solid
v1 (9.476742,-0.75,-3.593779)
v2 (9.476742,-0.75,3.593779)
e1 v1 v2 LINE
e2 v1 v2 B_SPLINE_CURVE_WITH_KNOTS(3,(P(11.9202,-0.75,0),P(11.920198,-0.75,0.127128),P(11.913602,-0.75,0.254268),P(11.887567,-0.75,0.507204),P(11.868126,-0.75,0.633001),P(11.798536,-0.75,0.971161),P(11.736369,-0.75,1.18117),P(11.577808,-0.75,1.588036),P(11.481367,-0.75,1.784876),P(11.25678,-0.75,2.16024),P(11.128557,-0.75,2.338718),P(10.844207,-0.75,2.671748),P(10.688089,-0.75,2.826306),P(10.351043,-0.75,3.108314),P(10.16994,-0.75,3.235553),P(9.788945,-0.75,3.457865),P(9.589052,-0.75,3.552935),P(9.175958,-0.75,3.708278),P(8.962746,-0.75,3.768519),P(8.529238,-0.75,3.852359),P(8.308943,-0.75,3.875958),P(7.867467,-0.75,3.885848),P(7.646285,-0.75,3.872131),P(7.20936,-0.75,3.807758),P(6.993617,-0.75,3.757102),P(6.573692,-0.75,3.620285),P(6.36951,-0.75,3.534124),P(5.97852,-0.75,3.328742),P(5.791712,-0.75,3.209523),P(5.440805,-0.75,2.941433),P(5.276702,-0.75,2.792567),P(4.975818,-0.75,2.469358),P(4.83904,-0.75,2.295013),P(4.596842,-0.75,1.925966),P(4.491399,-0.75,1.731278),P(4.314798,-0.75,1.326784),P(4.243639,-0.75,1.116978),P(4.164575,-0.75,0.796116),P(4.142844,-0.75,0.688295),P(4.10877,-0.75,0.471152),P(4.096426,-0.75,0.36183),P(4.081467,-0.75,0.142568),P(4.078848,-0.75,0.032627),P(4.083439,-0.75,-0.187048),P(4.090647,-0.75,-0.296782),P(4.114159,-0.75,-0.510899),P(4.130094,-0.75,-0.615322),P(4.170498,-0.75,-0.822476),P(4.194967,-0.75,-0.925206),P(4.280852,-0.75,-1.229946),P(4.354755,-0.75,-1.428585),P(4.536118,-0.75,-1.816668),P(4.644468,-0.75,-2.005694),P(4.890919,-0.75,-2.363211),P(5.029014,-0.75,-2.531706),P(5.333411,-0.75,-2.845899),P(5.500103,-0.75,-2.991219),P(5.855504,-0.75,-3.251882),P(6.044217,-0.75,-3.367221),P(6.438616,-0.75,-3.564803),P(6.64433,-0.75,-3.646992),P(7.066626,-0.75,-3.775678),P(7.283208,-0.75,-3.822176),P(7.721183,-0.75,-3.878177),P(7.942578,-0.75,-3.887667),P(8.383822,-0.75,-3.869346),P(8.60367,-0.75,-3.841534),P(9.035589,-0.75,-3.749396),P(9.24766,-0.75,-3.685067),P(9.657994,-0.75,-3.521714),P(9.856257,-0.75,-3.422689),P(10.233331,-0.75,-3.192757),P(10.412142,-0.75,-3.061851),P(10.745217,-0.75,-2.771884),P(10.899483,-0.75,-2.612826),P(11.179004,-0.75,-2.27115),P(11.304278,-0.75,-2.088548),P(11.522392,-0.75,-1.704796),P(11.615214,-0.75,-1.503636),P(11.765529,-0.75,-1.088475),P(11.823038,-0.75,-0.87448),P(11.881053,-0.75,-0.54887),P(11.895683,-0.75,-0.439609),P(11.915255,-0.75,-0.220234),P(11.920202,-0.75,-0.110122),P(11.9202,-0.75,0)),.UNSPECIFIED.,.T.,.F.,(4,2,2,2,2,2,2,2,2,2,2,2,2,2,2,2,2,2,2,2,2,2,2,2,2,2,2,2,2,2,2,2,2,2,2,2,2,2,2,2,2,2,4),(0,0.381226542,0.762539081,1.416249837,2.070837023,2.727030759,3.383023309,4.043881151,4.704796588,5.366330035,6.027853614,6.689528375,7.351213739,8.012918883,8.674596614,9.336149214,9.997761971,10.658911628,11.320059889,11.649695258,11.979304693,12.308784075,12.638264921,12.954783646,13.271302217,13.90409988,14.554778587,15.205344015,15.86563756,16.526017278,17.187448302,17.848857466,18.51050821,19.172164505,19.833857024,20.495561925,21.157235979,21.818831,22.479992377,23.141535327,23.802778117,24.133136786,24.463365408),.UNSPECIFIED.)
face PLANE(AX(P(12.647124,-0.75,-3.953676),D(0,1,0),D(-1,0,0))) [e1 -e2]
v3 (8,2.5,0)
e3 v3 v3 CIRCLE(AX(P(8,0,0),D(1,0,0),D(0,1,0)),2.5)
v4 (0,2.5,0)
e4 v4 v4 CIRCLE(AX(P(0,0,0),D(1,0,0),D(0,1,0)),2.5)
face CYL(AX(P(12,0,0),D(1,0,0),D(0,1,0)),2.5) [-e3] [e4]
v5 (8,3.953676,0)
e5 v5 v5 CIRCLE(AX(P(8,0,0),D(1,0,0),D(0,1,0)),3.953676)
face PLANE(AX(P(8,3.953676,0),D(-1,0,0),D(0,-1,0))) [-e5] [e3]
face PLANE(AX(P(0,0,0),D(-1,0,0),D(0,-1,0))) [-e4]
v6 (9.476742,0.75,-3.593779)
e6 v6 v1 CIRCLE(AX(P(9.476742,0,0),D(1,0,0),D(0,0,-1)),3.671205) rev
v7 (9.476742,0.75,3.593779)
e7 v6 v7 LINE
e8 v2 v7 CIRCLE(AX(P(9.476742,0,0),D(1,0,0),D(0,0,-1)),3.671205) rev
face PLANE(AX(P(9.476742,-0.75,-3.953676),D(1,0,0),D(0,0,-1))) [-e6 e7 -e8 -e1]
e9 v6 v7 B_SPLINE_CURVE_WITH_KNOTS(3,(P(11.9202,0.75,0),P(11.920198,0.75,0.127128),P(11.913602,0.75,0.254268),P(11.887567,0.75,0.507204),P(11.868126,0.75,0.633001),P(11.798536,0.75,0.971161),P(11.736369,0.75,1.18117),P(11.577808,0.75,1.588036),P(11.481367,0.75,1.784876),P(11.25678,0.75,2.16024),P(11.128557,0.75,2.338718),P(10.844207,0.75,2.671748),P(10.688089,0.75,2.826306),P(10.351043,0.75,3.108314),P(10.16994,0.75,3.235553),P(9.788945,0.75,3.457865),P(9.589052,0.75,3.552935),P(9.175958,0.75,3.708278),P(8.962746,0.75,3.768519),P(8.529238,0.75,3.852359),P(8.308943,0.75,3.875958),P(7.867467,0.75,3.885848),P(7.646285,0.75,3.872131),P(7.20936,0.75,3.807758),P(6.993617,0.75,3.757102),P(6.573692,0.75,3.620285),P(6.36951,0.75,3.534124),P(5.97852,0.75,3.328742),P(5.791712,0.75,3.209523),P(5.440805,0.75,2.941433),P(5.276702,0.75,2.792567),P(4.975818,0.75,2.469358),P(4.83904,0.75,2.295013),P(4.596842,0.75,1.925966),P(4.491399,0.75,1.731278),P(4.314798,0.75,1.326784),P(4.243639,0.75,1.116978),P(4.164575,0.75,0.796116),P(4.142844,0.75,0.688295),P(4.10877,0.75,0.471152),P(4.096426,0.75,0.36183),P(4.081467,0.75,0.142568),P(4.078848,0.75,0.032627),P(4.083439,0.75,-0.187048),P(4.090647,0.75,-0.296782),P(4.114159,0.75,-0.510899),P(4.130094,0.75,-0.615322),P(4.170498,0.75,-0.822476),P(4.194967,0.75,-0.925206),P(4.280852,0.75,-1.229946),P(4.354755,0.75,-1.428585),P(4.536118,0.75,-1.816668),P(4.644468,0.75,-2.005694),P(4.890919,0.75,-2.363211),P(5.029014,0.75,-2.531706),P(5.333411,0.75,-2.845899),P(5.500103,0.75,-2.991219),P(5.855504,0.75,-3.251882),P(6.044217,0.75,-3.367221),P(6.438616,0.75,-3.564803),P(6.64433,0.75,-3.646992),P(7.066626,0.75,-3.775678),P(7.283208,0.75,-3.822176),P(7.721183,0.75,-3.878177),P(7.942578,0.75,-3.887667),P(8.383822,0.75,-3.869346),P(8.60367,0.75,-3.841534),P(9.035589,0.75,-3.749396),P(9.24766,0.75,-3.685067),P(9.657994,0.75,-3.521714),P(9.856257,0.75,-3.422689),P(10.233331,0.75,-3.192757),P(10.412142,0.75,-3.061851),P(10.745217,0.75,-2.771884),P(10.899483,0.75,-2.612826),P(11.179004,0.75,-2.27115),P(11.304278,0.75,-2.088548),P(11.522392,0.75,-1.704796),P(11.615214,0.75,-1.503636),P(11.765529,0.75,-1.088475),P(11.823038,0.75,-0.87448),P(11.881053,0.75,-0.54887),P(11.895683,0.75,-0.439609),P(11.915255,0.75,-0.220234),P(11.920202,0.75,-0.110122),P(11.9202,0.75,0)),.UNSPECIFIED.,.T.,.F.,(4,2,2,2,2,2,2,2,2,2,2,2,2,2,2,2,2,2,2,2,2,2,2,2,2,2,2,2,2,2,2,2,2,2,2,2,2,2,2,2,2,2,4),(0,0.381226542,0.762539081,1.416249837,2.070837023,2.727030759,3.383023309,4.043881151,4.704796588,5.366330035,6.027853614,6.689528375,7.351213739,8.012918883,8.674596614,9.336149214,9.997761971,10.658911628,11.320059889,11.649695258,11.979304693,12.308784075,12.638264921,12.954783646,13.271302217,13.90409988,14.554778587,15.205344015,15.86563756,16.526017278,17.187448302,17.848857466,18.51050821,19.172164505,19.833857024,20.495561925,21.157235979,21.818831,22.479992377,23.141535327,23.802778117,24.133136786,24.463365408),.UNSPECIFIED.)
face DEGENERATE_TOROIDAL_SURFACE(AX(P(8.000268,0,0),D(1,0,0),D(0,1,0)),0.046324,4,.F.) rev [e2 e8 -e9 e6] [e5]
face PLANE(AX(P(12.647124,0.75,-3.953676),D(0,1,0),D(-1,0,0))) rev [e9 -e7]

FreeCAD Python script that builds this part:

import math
import FreeCAD as App
import Part
import Sketcher

doc = App.newDocument("Part")
body = doc.addObject("PartDesign::Body", "Body")

# Sketch on XY plane
sketch1 = doc.addObject("Sketcher::SketchObject", "Sketch")
body.addObject(sketch1)
sketch1.AttachmentSupport = (doc.XY_Plane, [""])
sketch1.MapMode = "FlatFace"
sketch1.addGeometry([
    Part.LineSegment(App.Vector(0, 2.5, 0), App.Vector(0, 0, 0)),  # 0
    Part.LineSegment(App.Vector(0, 0, 0), App.Vector(12, 0, 0)),  # 1
    Part.ArcOfCircle(Part.Circle(App.Vector(8, 0, 0), App.Vector(0, 0, 1), 4), math.radians(1), math.radians(90)),  # 2
    Part.LineSegment(App.Vector(8, 4, 0), App.Vector(8, 2.5, 0)),  # 3
    Part.LineSegment(App.Vector(8, 2.5, 0), App.Vector(0, 2.5, 0)),  # 4
], False)
sketch1.addConstraint([
    Sketcher.Constraint("Coincident", 0, 2, 1, 1),
    Sketcher.Constraint("Coincident", 1, 2, 2, 1),
    Sketcher.Constraint("Coincident", 2, 2, 3, 1),
    Sketcher.Constraint("Coincident", 3, 2, 4, 1),
    Sketcher.Constraint("Coincident", 4, 2, 0, 1),
    Sketcher.Constraint("Vertical", 0),
    Sketcher.Constraint("Horizontal", 1),
    Sketcher.Constraint("Vertical", 3),
    Sketcher.Constraint("Horizontal", 4),
    Sketcher.Constraint("Coincident", 0, 2, -1, 1),
    Sketcher.Constraint("Radius", 2, 4.0),
    Sketcher.Constraint("DistanceX", 1, 1, 1, 2, 12.0),
    Sketcher.Constraint("DistanceX", 4, 2, 4, 1, 8.0),
    Sketcher.Constraint("DistanceY", 0, 2, 0, 1, 2.5),
    Sketcher.Constraint("DistanceY", 3, 2, 3, 1, 1.453676),
])
revolution = doc.addObject("PartDesign::Revolution", "Revolution")
body.addObject(revolution)
revolution.Profile = sketch1
revolution.ReferenceAxis = (sketch1, ["H_Axis"])
revolution.Angle = 360

# Sketch on XY plane
sketch2 = doc.addObject("Sketcher::SketchObject", "Sketch001")
body.addObject(sketch2)
sketch2.AttachmentSupport = (doc.XY_Plane, [""])
sketch2.MapMode = "FlatFace"
sketch2.addGeometry([
    Part.LineSegment(App.Vector(9.5, 0.8, 0), App.Vector(9.5, -0.8, 0)),
    Part.LineSegment(App.Vector(9.5, -0.8, 0), App.Vector(12.6, -0.8, 0)),
    Part.LineSegment(App.Vector(12.6, -0.8, 0), App.Vector(12.6, 0.8, 0)),
    Part.LineSegment(App.Vector(12.6, 0.8, 0), App.Vector(9.5, 0.8, 0)),
], False)
sketch2.addConstraint([
    Sketcher.Constraint("Coincident", 0, 2, 1, 1),
    Sketcher.Constraint("Coincident", 1, 2, 2, 1),
    Sketcher.Constraint("Coincident", 2, 2, 3, 1),
    Sketcher.Constraint("Coincident", 3, 2, 0, 1),
    Sketcher.Constraint("Vertical", 0),
    Sketcher.Constraint("Horizontal", 1),
    Sketcher.Constraint("Vertical", 2),
    Sketcher.Constraint("Horizontal", 3),
    Sketcher.Constraint("DistanceY", 0, 2, 0, 1, 1.5),
    Sketcher.Constraint("DistanceY", 0, 2, -1, 1, 0.75),
    Sketcher.Constraint("DistanceX", 1, 1, 1, 2, 3.170382),
    Sketcher.Constraint("DistanceX", -1, 1, 0, 2, 9.476742),
])
pocket1 = doc.addObject("PartDesign::Pocket", "Pocket")
body.addObject(pocket1)
pocket1.Profile = sketch2
pocket1.Type = "ThroughAll"
pocket1.Midplane = True

doc.recompute()
